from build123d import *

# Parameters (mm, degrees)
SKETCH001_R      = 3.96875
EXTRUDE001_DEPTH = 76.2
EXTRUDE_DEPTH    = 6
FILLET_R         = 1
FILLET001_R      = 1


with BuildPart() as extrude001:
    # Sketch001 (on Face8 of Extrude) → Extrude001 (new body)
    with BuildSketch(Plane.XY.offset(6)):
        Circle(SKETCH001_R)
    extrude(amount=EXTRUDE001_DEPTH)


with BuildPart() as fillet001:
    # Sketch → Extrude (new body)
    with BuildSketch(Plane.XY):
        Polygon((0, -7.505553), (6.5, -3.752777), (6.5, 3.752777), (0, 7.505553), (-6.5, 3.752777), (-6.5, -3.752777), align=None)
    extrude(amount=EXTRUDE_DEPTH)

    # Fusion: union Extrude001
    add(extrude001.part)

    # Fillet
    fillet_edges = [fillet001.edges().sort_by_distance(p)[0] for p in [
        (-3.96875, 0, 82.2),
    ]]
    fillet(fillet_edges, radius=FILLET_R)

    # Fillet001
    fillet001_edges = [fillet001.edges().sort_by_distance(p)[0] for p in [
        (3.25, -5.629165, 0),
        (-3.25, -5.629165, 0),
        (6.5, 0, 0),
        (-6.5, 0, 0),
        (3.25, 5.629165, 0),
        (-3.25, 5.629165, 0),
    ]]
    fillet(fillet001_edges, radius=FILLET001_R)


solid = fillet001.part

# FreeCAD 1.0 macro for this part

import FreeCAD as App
import Part
import Sketcher
Q = App.Units.Quantity


def edges_at(feature, points):
    """Names of the edges that pass closest to the given points."""
    edges = feature.Shape.Edges
    near = lambda p: min(range(len(edges)), key=lambda i: edges[i].distToShape(Part.Vertex(*p))[0])
    return sorted({f"Edge{near(p) + 1}" for p in points})

doc = App.newDocument("Part")
body = doc.addObject("PartDesign::Body", "Body")

sketch1 = doc.addObject("Sketcher::SketchObject", "Sketch")
body.addObject(sketch1)
sketch1.AttachmentSupport = (doc.XY_Plane, [""])
sketch1.MapMode = "FlatFace"
sketch1.AttachmentOffset = App.Placement(App.Vector(0, 0, 6), App.Rotation())
sketch1.addGeometry(Part.Circle(App.Vector(0, 0, 0), App.Vector(0, 0, 1), 3.96875), False)
sketch1.addConstraint(Sketcher.Constraint("Coincident", 0, 3, -1, 1))
sketch1.addConstraint(Sketcher.Constraint("Diameter", 0, Q("7.9375 mm")))
pad1 = doc.addObject("PartDesign::Pad", "Pad")
body.addObject(pad1)
pad1.Profile = sketch1
pad1.Length = 76.2
body2 = doc.addObject("PartDesign::Body", "Body001")

sketch2 = doc.addObject("Sketcher::SketchObject", "Sketch001")
body2.addObject(sketch2)
sketch2.AttachmentSupport = (doc.getObject("XY_Plane001"), [""])
sketch2.MapMode = "FlatFace"
sketch2.addGeometry(Part.LineSegment(App.Vector(0, -7.505553, 0), App.Vector(6.5, -3.752777, 0)), False)
sketch2.addGeometry(Part.LineSegment(App.Vector(6.5, -3.752777, 0), App.Vector(6.5, 3.752777, 0)), False)
sketch2.addGeometry(Part.LineSegment(App.Vector(6.5, 3.752777, 0), App.Vector(0, 7.505553, 0)), False)
sketch2.addGeometry(Part.LineSegment(App.Vector(0, 7.505553, 0), App.Vector(-6.5, 3.752777, 0)), False)
sketch2.addGeometry(Part.LineSegment(App.Vector(-6.5, 3.752777, 0), App.Vector(-6.5, -3.752777, 0)), False)
sketch2.addGeometry(Part.LineSegment(App.Vector(-6.5, -3.752777, 0), App.Vector(0, -7.505553, 0)), False)
sketch2.addConstraint(Sketcher.Constraint("Coincident", 0, 2, 1, 1))
sketch2.addConstraint(Sketcher.Constraint("Coincident", 1, 2, 2, 1))
sketch2.addConstraint(Sketcher.Constraint("Coincident", 2, 2, 3, 1))
sketch2.addConstraint(Sketcher.Constraint("Coincident", 3, 2, 4, 1))
sketch2.addConstraint(Sketcher.Constraint("Coincident", 4, 2, 5, 1))
sketch2.addConstraint(Sketcher.Constraint("Coincident", 5, 2, 0, 1))
sketch2.addConstraint(Sketcher.Constraint("Vertical", 1))
sketch2.addConstraint(Sketcher.Constraint("Vertical", 4))
sketch2.addConstraint(Sketcher.Constraint("Symmetric", 0, 2, 3, 2, -1, 1))
sketch2.addConstraint(Sketcher.Constraint("Symmetric", 2, 2, 5, 2, -1, 1))
sketch2.addConstraint(Sketcher.Constraint("PointOnObject", 2, 2, -2))
sketch2.addConstraint(Sketcher.Constraint("Parallel", 2, 5))
sketch2.addConstraint(Sketcher.Constraint("Horizontal", 1, 2, 3, 2))
sketch2.addConstraint(Sketcher.Constraint("Angle", 0, Q("29.999995 deg")))
sketch2.addConstraint(Sketcher.Constraint("DistanceX", 3, 2, 1, 2, Q("13 mm")))
sketch2.addConstraint(Sketcher.Constraint("DistanceY", 1, 1, 1, 2, Q("7.505554 mm")))
pad2 = doc.addObject("PartDesign::Pad", "Pad001")
body2.addObject(pad2)
pad2.Profile = sketch2
pad2.Length = 6
doc.recompute()

boolean = doc.addObject("PartDesign::Boolean", "Boolean")
body2.addObject(boolean)
boolean.Type = "Fuse"
boolean.addObjects([body])
doc.recompute()

fillet = doc.addObject("PartDesign::Fillet", "Fillet")
body2.addObject(fillet)
fillet.Base = (boolean, edges_at(boolean, [(-3.969, 0, 82.2)]))
fillet.Radius = 1
doc.recompute()

fillet2 = doc.addObject("PartDesign::Fillet", "Fillet001")
body2.addObject(fillet2)
fillet2.Base = (fillet, edges_at(fillet, [
    (3.25, -5.629, 0),
    (-3.25, -5.629, 0),
    (6.5, 0, 0),
    (-6.5, 0, 0),
    (3.25, 5.629, 0),
    (-3.25, 5.629, 0),
]))
fillet2.Radius = 1

doc.recompute()
